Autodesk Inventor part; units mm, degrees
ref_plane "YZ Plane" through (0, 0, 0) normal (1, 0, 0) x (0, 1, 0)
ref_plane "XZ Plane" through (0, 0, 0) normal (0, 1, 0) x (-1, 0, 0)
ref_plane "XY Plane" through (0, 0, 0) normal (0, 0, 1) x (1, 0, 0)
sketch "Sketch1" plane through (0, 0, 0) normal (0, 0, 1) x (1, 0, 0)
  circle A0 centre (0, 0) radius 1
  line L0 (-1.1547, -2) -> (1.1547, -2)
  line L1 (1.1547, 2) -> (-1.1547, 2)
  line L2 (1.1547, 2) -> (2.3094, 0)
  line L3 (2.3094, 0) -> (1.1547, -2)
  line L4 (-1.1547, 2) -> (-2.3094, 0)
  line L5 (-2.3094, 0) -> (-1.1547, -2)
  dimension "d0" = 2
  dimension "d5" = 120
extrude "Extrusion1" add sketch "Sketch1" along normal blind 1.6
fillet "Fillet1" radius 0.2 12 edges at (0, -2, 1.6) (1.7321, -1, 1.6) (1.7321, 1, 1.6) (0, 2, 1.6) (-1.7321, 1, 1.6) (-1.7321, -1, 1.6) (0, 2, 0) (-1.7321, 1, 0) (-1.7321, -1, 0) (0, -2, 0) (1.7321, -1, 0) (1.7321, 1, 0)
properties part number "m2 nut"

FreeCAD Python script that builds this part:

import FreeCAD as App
import Part
import Sketcher
Q = App.Units.Quantity


def edges_at(feature, points):
    """Names of the edges that pass closest to the given points."""
    edges = feature.Shape.Edges
    near = lambda p: min(range(len(edges)), key=lambda i: edges[i].distToShape(Part.Vertex(*p))[0])
    return sorted({f"Edge{near(p) + 1}" for p in points})


def add_polygon(sketch, points):
    """Adds a closed chain of lines whose ends are joined by coincident constraints."""
    first, n = sketch.GeometryCount, len(points)
    for a, b in zip(points, points[1:] + points[:1]):
        sketch.addGeometry(Part.LineSegment(App.Vector(*a, 0), App.Vector(*b, 0)), False)
    for i in range(n):
        sketch.addConstraint(Sketcher.Constraint("Coincident", first + i, 2, first + (i + 1) % n, 1))

doc = App.newDocument("Part")
body = doc.addObject("PartDesign::Body", "Body")

sketch1 = body.newObject("Sketcher::SketchObject", "Sketch")
sketch1.AttachmentSupport = (doc.getObject("XY_Plane"), [""])
sketch1.MapMode = "FlatFace"
add_polygon(sketch1, [(-2.3094, 0), (-1.1547, -2), (1.1547, -2), (2.3094, 0), (1.1547, 2), (-1.1547, 2)])
sketch1.addGeometry(Part.Circle(App.Vector(0, 0, 0), App.Vector(0, 0, 1), 1), False)
sketch1.addConstraint([
    Sketcher.Constraint("Horizontal", 1),
    Sketcher.Constraint("Horizontal", 4),
    Sketcher.Constraint("Coincident", 6, 3, -1, 1),
    Sketcher.Constraint("Symmetric", 0, 2, 3, 2, -1, 1),
    Sketcher.Constraint("Symmetric", 2, 2, 5, 2, -1, 1),
    Sketcher.Constraint("PointOnObject", 2, 2, -1),
    Sketcher.Constraint("Parallel", 2, 5),
    Sketcher.Constraint("Vertical", 1, 2, 3, 2),
    Sketcher.Constraint("Diameter", 6, Q("2 mm")),
    Sketcher.Constraint("Angle", 3, Q("120 deg")),
    Sketcher.Constraint("DistanceY", 0, 2, -1, 1, Q("2 mm")),
    Sketcher.Constraint("DistanceX", 1, 1, 1, 2, Q("2.3094 mm")),
])
pad1 = body.newObject("PartDesign::Pad", "Pad")
pad1.Profile = sketch1
pad1.Length = 1.6
doc.recompute()

fillet = body.newObject("PartDesign::Fillet", "Fillet")
fillet.Base = (pad1, edges_at(pad1, [
    (0, -2, 1.6),
    (1.732, -1, 1.6),
    (1.732, 1, 1.6),
    (0, 2, 1.6),
    (-1.732, 1, 1.6),
    (-1.732, -1, 1.6),
    (0, 2, 0),
    (-1.732, 1, 0),
    (-1.732, -1, 0),
    (0, -2, 0),
    (1.732, -1, 0),
    (1.732, 1, 0),
]))
fillet.Radius = 0.2

doc.recompute()
